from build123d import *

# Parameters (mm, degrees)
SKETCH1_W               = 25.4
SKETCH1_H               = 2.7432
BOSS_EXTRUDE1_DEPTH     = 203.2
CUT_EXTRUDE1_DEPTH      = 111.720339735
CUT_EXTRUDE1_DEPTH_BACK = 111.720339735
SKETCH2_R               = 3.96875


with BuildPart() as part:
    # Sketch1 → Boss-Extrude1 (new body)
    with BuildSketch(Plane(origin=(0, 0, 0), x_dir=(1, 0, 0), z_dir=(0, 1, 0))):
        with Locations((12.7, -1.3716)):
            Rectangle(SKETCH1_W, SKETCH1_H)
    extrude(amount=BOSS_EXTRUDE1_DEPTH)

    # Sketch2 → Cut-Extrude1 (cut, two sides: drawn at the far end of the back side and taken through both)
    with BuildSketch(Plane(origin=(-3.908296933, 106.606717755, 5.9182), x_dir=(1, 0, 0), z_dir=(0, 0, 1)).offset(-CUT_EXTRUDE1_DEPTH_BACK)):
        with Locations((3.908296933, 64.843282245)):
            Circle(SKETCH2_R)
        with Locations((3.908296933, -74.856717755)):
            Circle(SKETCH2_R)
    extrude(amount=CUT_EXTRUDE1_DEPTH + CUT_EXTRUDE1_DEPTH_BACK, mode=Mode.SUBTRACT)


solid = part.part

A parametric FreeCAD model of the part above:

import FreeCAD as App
import Part
import Sketcher

V = App.Vector
Q = App.Units.Quantity


def add_polygon(sketch, points):
    """Adds a closed chain of lines whose ends are joined by coincident constraints."""
    first, n = sketch.GeometryCount, len(points)
    for a, b in zip(points, points[1:] + points[:1]):
        sketch.addGeometry(Part.LineSegment(App.Vector(*a, 0), App.Vector(*b, 0)), False)
    for i in range(n):
        sketch.addConstraint(Sketcher.Constraint("Coincident", first + i, 2, first + (i + 1) % n, 1))

doc = App.newDocument("Part")
body = doc.addObject("PartDesign::Body", "Body")

# Sketch on XZ plane
sketch1 = body.newObject("Sketcher::SketchObject", "Sketch")
sketch1.AttachmentSupport = (doc.getObject("XZ_Plane"), [""])
sketch1.MapMode = "FlatFace"
add_polygon(sketch1, [(0, 0), (0, 2.7), (25.4, 2.7), (25.4, 0)])  # lines 0-3
sketch1.addConstraint([
    Sketcher.Constraint("Vertical", 0),
    Sketcher.Constraint("Horizontal", 1),
    Sketcher.Constraint("Vertical", 2),
    Sketcher.Constraint("Horizontal", 3),
    Sketcher.Constraint("Coincident", 3, 2, -1, 1),
    Sketcher.Constraint("DistanceX", 1, 1, 1, 2, Q("1 in")),
    Sketcher.Constraint("DistanceY", 0, 1, 0, 2, Q("0.108 in")),
])
pad1 = body.newObject("PartDesign::Pad", "Pad")
pad1.Profile = sketch1
pad1.Length = Q("8 in")
pad1.Reversed = True

# Sketch on XY plane
sketch2 = body.newObject("Sketcher::SketchObject", "Sketch001")
sketch2.AttachmentSupport = (doc.getObject("XY_Plane"), [""])
sketch2.MapMode = "FlatFace"
sketch2.AttachmentOffset = App.Placement(V(0, 0, 0.233 * 25.4), App.Rotation())
sketch2.addGeometry([
    Part.Circle(V(0, 171.4, 0), V(0, 0, 1), 4),
    Part.Circle(V(0, 31.8, 0), V(0, 0, 1), 4),
], False)
sketch2.addConstraint([
    Sketcher.Constraint("Equal", 0, 1),
    Sketcher.Constraint("PointOnObject", 0, 3, -2),
    Sketcher.Constraint("PointOnObject", 1, 3, -2),
    Sketcher.Constraint("Diameter", 0, Q("0.3125 in")),
    Sketcher.Constraint("DistanceY", 1, 3, 0, 3, Q("5.5 in")),
    Sketcher.Constraint("DistanceY", -1, 1, 0, 3, Q("6.75 in")),
])
pocket1 = body.newObject("PartDesign::Pocket", "Pocket")
pocket1.Profile = sketch2
pocket1.Type = "ThroughAll"
pocket1.Midplane = True

doc.recompute()
